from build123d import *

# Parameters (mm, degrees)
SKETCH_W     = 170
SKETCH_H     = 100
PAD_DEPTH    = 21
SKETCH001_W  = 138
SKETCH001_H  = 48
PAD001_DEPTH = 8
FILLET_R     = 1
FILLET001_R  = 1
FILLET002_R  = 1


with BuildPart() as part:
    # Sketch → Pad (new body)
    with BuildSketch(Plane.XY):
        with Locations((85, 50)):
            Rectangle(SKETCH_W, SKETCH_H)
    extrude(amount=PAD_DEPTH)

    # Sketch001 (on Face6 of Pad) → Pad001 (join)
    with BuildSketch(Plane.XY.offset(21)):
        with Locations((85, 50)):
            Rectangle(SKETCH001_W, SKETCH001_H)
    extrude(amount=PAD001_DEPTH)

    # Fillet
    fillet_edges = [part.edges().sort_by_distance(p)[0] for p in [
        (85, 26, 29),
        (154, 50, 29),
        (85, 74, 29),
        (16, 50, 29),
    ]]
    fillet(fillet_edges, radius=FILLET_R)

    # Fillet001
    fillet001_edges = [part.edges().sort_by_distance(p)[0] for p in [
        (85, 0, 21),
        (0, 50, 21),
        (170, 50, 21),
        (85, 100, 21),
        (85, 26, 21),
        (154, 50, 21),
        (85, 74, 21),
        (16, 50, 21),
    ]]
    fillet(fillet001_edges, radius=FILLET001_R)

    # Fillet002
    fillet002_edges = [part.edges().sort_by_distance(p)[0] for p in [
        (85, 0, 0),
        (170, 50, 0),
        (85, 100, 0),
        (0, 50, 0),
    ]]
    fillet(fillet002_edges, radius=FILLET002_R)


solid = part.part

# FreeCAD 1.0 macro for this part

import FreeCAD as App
import Part
import Sketcher

V = App.Vector


def edges_at(feature, points):
    """Names of the edges that pass closest to the given points."""
    edges = feature.Shape.Edges
    near = lambda p: min(range(len(edges)), key=lambda i: edges[i].distToShape(Part.Vertex(*p))[0])
    return sorted({f"Edge{near(p) + 1}" for p in points})

doc = App.newDocument("Part")
params = doc.addObject("Spreadsheet::Sheet", "Params")
for row, (alias, value) in enumerate([
    ("sketch1_width", "170 mm"),
    ("sketch1_height", "100 mm"),
    ("pad1_length", "21 mm"),
    ("sketch2_width", "138 mm"),
    ("sketch2_height", "48 mm"),
    ("pad2_length", "8 mm"),
    ("fillet_radius", "1 mm"),
    ("fillet2_radius", "1 mm"),
    ("fillet3_radius", "1 mm"),
], start=1):
    params.set(f"A{row}", alias)
    params.set(f"B{row}", "=" + value)
    params.setAlias(f"B{row}", alias)

body = doc.addObject("PartDesign::Body", "Body")

sketch1 = body.newObject("Sketcher::SketchObject", "Sketch")
sketch1.AttachmentSupport = (doc.getObject("XY_Plane"), [""])
sketch1.MapMode = "FlatFace"
sketch1.addGeometry([
    Part.LineSegment(V(0, 100, 0), V(0, 0, 0)),
    Part.LineSegment(V(0, 0, 0), V(170, 0, 0)),
    Part.LineSegment(V(170, 0, 0), V(170, 100, 0)),
    Part.LineSegment(V(170, 100, 0), V(0, 100, 0)),
], False)
sketch1.addConstraint([
    Sketcher.Constraint("Coincident", 0, 2, 1, 1),
    Sketcher.Constraint("Coincident", 1, 2, 2, 1),
    Sketcher.Constraint("Coincident", 2, 2, 3, 1),
    Sketcher.Constraint("Coincident", 3, 2, 0, 1),
    Sketcher.Constraint("Vertical", 0),
    Sketcher.Constraint("Horizontal", 1),
    Sketcher.Constraint("Vertical", 2),
    Sketcher.Constraint("Horizontal", 3),
    Sketcher.Constraint("Coincident", 0, 2, -1, 1),
    Sketcher.Constraint("DistanceX", 1, 1, 1, 2, 170.0),
    Sketcher.Constraint("DistanceY", 0, 2, 0, 1, 100.0),
])
sketch1.setExpression("Constraints[9]", "Params.sketch1_width")
sketch1.setExpression("Constraints[10]", "Params.sketch1_height")
pad1 = body.newObject("PartDesign::Pad", "Pad")
pad1.Profile = sketch1
pad1.setExpression("Length", "Params.pad1_length")

sketch2 = body.newObject("Sketcher::SketchObject", "Sketch001")
sketch2.AttachmentSupport = (doc.getObject("XY_Plane"), [""])
sketch2.MapMode = "FlatFace"
sketch2.AttachmentOffset = App.Placement(V(0, 0, 21), App.Rotation())
sketch2.addGeometry([
    Part.LineSegment(V(16, 74, 0), V(16, 26, 0)),
    Part.LineSegment(V(16, 26, 0), V(154, 26, 0)),
    Part.LineSegment(V(154, 26, 0), V(154, 74, 0)),
    Part.LineSegment(V(154, 74, 0), V(16, 74, 0)),
], False)
sketch2.addConstraint([
    Sketcher.Constraint("Coincident", 0, 2, 1, 1),
    Sketcher.Constraint("Coincident", 1, 2, 2, 1),
    Sketcher.Constraint("Coincident", 2, 2, 3, 1),
    Sketcher.Constraint("Coincident", 3, 2, 0, 1),
    Sketcher.Constraint("Vertical", 0),
    Sketcher.Constraint("Horizontal", 1),
    Sketcher.Constraint("Vertical", 2),
    Sketcher.Constraint("Horizontal", 3),
    Sketcher.Constraint("DistanceX", 1, 1, 1, 2, 138.0),
    Sketcher.Constraint("DistanceY", 0, 2, 0, 1, 48.0),
    Sketcher.Constraint("DistanceX", -1, 1, 0, 2, 16.0),
    Sketcher.Constraint("DistanceY", -1, 1, 0, 2, 26.0),
])
sketch2.setExpression("Constraints[8]", "Params.sketch2_width")
sketch2.setExpression("Constraints[9]", "Params.sketch2_height")
pad2 = body.newObject("PartDesign::Pad", "Pad001")
pad2.Profile = sketch2
pad2.setExpression("Length", "Params.pad2_length")
doc.recompute()

fillet = body.newObject("PartDesign::Fillet", "Fillet")
fillet.Base = (pad2, edges_at(pad2, [
    (85, 26, 29),
    (154, 50, 29),
    (85, 74, 29),
    (16, 50, 29),
]))
fillet.setExpression("Radius", "Params.fillet_radius")
doc.recompute()

fillet2 = body.newObject("PartDesign::Fillet", "Fillet001")
fillet2.Base = (fillet, edges_at(fillet, [
    (85, 0, 21),
    (0, 50, 21),
    (170, 50, 21),
    (85, 100, 21),
    (85, 26, 21),
    (154, 50, 21),
    (85, 74, 21),
    (16, 50, 21),
]))
fillet2.setExpression("Radius", "Params.fillet2_radius")
doc.recompute()

fillet3 = body.newObject("PartDesign::Fillet", "Fillet002")
fillet3.Base = (fillet2, edges_at(fillet2, [
    (85, 0, 0),
    (170, 50, 0),
    (85, 100, 0),
    (0, 50, 0),
]))
fillet3.setExpression("Radius", "Params.fillet3_radius")

doc.recompute()
